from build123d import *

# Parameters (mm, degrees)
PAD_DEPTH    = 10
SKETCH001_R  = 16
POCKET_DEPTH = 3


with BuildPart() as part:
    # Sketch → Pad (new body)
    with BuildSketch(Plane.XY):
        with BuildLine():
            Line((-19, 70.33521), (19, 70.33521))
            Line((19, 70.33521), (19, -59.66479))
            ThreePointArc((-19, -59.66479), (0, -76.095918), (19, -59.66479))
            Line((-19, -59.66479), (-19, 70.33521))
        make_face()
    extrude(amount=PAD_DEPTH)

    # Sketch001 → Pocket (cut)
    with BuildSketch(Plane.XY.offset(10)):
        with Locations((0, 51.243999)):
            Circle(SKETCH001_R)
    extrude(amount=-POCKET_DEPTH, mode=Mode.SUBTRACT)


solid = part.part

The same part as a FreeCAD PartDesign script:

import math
import FreeCAD as App
import Part
import Sketcher
from FreeCAD import Vector
Q = App.Units.Quantity

doc = App.newDocument("Part")
params = doc.addObject("Spreadsheet::Sheet", "Params")
for row, (alias, value) in enumerate([
    ("sketch1_width", "38 mm"),
    ("sketch1_height", "130 mm"),
    ("pad1_length", "10 mm"),
    ("sketch2_diameter", "32 mm"),
    ("pocket1_length", "3 mm"),
], start=1):
    params.set(f"A{row}", alias)
    params.set(f"B{row}", "=" + value)
    params.setAlias(f"B{row}", alias)

body = doc.addObject("PartDesign::Body", "Body")

# Sketch on XY plane
sketch1 = body.newObject("Sketcher::SketchObject", "Sketch")
sketch1.AttachmentSupport = (doc.getObject("XY_Plane"), [""])
sketch1.MapMode = "FlatFace"
sketch1.addGeometry([
    Part.LineSegment(Vector(19, 70, 0), Vector(-19, 70, 0)),
    Part.LineSegment(Vector(-19, 70, 0), Vector(-19, -60, 0)),
    Part.ArcOfCircle(Part.Circle(Vector(0, -57, 0), Vector(0, 0, 1), 19), math.radians(-172), math.radians(-8)),
    Part.LineSegment(Vector(19, -60, 0), Vector(19, 70, 0)),
], False)
sketch1.addConstraint([
    Sketcher.Constraint("Coincident", 0, 2, 1, 1),
    Sketcher.Constraint("Coincident", 1, 2, 2, 1),
    Sketcher.Constraint("Coincident", 2, 2, 3, 1),
    Sketcher.Constraint("Coincident", 3, 2, 0, 1),
    Sketcher.Constraint("Horizontal", 0),
    Sketcher.Constraint("Vertical", 1),
    Sketcher.Constraint("Vertical", 3),
    Sketcher.Constraint("Symmetric", 1, 2, 2, 2, -2),
    Sketcher.Constraint("DistanceX", 0, 2, 0, 1, Q("38 mm")),
    Sketcher.Constraint("DistanceY", 1, 2, 1, 1, Q("130 mm")),
    Sketcher.Constraint("Radius", 2, Q("19.200811 mm")),
    Sketcher.Constraint("DistanceY", -1, 1, 0, 2, Q("70.33521 mm")),
])
sketch1.setExpression("Constraints[8]", "Params.sketch1_width")
sketch1.setExpression("Constraints[9]", "Params.sketch1_height")
pad1 = body.newObject("PartDesign::Pad", "Pad")
pad1.Profile = sketch1
pad1.setExpression("Length", "Params.pad1_length")

# Sketch on XY plane
sketch2 = body.newObject("Sketcher::SketchObject", "Sketch001")
sketch2.AttachmentSupport = (doc.getObject("XY_Plane"), [""])
sketch2.MapMode = "FlatFace"
sketch2.AttachmentOffset = App.Placement(Vector(0, 0, 10), App.Rotation())
sketch2.addGeometry(Part.Circle(Vector(0, 51, 0), Vector(0, 0, 1), 16), False)
sketch2.addConstraint([
    Sketcher.Constraint("PointOnObject", 0, 3, -2),
    Sketcher.Constraint("Diameter", 0, Q("32 mm")),
    Sketcher.Constraint("DistanceY", -1, 1, 0, 3, Q("51.243999 mm")),
])
sketch2.setExpression("Constraints[1]", "Params.sketch2_diameter")
pocket1 = body.newObject("PartDesign::Pocket", "Pocket")
pocket1.Profile = sketch2
pocket1.setExpression("Length", "Params.pocket1_length")

doc.recompute()
